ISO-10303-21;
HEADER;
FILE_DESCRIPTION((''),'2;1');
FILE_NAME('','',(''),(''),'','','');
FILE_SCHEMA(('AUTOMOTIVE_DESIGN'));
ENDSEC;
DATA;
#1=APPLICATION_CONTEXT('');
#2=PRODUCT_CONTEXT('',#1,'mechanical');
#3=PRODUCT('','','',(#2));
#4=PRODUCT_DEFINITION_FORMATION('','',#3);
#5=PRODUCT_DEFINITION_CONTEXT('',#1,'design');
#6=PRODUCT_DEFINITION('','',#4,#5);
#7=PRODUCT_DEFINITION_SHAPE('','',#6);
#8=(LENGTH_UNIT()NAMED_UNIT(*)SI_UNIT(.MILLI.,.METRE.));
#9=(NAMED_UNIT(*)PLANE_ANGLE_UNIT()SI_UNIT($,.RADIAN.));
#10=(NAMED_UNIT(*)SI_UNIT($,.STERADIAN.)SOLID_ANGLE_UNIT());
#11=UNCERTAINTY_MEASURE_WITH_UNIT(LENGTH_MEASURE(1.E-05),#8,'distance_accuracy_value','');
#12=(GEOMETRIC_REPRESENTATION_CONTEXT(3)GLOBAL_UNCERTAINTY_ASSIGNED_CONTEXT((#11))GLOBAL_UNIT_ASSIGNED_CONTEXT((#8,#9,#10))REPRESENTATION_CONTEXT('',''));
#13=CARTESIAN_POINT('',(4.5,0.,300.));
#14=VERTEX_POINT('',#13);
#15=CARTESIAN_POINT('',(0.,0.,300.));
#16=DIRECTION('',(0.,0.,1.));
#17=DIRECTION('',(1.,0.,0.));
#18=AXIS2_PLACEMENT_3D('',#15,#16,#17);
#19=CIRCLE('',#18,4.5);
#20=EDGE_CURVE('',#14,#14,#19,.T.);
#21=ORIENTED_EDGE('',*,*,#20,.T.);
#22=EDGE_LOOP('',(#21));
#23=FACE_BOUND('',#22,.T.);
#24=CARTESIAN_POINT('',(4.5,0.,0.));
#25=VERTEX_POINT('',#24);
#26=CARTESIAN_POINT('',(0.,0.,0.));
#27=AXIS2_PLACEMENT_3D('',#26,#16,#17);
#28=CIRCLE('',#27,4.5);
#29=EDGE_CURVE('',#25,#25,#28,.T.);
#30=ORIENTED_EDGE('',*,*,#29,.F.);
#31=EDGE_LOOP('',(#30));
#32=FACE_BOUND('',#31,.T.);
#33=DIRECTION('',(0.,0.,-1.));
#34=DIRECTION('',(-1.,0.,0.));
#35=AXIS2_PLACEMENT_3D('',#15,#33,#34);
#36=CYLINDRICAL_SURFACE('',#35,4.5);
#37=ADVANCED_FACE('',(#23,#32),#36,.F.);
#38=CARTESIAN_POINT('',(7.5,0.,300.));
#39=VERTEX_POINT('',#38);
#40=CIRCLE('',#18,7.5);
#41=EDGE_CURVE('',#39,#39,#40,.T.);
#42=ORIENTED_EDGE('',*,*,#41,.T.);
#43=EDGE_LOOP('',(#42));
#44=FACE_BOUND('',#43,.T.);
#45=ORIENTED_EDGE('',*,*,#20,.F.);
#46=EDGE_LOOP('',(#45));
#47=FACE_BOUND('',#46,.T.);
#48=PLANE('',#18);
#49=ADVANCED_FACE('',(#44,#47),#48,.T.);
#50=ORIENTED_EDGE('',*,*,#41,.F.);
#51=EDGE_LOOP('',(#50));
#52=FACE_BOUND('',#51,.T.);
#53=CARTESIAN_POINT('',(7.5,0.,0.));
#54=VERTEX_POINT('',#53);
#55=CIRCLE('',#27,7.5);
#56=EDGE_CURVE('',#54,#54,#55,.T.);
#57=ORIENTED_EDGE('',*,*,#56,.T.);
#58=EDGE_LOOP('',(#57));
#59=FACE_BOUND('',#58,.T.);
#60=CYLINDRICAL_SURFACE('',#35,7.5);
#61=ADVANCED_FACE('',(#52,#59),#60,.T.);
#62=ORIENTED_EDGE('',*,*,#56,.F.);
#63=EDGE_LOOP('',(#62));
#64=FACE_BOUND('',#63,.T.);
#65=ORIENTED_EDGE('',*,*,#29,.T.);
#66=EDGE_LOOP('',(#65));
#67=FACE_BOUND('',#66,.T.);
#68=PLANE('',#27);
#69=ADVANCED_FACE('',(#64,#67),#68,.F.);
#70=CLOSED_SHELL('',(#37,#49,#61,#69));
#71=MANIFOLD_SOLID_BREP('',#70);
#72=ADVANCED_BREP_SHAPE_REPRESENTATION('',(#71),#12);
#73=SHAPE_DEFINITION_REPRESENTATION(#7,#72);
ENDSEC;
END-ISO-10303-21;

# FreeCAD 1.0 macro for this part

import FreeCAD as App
import Part
import Sketcher

doc = App.newDocument("Part")
params = doc.addObject("Spreadsheet::Sheet", "Params")
for row, (alias, value) in enumerate([
    ("sketch1_diameter", "15 mm"),
    ("sketch1_diameter2", "9 mm"),
    ("pad1_length", "300 mm"),
], start=1):
    params.set(f"A{row}", alias)
    params.set(f"B{row}", "=" + value)
    params.setAlias(f"B{row}", alias)

body = doc.addObject("PartDesign::Body", "Body")

sketch1 = body.newObject("Sketcher::SketchObject", "Sketch")
sketch1.AttachmentSupport = (doc.getObject("XY_Plane"), [""])
sketch1.MapMode = "FlatFace"
sketch1.addGeometry([
    Part.Circle(App.Vector(0, 0, 0), App.Vector(0, 0, 1), 7.5),
    Part.Circle(App.Vector(0, 0, 0), App.Vector(0, 0, 1), 4.5),
], False)
sketch1.addConstraint([
    Sketcher.Constraint("Coincident", 0, 3, -1, 1),
    Sketcher.Constraint("Coincident", 1, 3, -1, 1),
    Sketcher.Constraint("Diameter", 0, 15.0),
    Sketcher.Constraint("Diameter", 1, 9.0),
])
sketch1.setExpression("Constraints[2]", "Params.sketch1_diameter")
sketch1.setExpression("Constraints[3]", "Params.sketch1_diameter2")
pad1 = body.newObject("PartDesign::Pad", "Pad")
pad1.Profile = sketch1
pad1.setExpression("Length", "Params.pad1_length")

doc.recompute()
